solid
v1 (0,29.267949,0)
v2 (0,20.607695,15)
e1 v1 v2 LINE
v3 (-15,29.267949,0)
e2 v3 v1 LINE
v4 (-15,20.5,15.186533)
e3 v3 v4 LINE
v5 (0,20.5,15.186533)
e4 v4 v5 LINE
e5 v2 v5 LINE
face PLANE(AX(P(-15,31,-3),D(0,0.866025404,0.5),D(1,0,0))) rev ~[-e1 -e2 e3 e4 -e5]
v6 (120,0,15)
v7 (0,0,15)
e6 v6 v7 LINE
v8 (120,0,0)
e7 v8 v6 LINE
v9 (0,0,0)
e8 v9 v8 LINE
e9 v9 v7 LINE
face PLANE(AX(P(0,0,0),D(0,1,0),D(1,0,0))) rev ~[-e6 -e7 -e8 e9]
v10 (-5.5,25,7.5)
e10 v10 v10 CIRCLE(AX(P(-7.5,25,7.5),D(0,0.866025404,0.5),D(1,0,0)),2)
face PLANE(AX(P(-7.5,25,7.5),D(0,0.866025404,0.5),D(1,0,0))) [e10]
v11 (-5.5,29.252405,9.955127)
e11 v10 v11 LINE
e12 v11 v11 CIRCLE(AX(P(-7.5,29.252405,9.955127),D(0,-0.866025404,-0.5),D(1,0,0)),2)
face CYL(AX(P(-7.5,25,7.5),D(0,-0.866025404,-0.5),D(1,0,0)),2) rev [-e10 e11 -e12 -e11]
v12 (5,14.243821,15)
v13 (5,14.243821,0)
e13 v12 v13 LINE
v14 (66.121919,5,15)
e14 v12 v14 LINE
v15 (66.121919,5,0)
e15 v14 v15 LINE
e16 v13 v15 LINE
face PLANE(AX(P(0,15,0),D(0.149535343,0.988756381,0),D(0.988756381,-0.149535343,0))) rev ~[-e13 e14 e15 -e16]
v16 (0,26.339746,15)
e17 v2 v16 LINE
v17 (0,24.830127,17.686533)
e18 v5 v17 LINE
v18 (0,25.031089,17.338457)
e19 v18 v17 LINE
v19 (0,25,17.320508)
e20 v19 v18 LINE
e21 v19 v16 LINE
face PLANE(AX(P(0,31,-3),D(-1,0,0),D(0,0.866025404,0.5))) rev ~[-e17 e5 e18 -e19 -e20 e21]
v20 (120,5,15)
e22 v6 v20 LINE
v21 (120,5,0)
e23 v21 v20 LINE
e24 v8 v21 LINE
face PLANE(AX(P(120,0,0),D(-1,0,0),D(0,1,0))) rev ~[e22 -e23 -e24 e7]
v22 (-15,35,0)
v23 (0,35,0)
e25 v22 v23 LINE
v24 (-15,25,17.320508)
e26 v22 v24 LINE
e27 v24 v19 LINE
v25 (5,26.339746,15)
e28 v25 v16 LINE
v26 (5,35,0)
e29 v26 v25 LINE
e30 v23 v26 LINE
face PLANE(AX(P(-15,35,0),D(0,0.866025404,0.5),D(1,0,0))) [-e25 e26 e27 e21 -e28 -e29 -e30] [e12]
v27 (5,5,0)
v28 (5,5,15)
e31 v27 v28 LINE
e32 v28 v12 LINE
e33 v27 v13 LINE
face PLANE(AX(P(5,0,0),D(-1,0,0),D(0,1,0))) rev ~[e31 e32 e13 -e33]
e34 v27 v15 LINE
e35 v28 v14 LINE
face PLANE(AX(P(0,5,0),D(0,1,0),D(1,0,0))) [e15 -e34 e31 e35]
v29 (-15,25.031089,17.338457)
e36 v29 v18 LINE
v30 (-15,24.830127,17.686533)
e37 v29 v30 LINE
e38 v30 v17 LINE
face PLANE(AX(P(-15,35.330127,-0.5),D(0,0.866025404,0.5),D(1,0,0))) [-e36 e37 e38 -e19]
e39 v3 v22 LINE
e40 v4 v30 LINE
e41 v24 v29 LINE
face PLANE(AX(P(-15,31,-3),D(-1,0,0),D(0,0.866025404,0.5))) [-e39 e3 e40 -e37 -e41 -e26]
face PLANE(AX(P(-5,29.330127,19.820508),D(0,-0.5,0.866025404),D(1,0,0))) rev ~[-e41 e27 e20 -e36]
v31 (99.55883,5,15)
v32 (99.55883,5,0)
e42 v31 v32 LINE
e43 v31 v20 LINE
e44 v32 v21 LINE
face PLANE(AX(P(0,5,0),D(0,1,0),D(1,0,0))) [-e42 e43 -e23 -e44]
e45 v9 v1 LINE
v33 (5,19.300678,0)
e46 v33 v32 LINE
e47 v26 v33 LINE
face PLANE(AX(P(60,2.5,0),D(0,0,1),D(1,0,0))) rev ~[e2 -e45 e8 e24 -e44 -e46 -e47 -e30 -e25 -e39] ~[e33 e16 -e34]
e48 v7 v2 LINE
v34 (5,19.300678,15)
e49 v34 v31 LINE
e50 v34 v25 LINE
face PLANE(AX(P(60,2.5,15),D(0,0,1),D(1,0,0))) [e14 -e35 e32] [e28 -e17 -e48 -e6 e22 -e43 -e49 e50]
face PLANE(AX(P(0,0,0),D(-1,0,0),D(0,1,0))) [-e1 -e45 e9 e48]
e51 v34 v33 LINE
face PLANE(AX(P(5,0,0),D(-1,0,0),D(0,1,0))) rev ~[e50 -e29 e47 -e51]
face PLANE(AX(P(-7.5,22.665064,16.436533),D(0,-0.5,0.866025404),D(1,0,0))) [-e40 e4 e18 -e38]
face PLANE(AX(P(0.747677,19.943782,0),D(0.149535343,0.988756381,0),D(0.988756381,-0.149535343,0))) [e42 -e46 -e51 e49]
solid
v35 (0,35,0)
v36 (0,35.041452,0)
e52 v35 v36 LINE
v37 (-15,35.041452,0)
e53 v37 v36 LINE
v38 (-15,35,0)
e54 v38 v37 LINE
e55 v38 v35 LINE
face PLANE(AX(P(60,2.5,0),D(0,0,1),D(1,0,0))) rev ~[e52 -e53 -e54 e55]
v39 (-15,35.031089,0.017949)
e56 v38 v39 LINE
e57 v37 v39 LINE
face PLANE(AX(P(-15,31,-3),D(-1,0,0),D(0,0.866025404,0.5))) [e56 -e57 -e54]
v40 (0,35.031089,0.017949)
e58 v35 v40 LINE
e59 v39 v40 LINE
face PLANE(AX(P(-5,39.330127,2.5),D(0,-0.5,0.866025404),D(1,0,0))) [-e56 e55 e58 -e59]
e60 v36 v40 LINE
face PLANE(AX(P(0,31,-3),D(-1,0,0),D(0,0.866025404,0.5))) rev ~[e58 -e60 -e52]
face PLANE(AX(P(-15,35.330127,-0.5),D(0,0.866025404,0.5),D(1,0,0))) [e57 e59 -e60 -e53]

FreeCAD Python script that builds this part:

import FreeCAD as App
import Part
import Sketcher

doc = App.newDocument("Part")
body = doc.addObject("PartDesign::Body", "Body")

# Sketch on XY plane
sketch1 = body.newObject("Sketcher::SketchObject", "Sketch")
sketch1.AttachmentSupport = (doc.getObject("XY_Plane"), [""])
sketch1.MapMode = "FlatFace"
sketch1.addGeometry(Part.Circle(App.Vector(0, 0, 0), App.Vector(0, 0, 1), 2), False)
sketch1.addConstraint(Sketcher.Constraint("Coincident", 0, 3, -1, 1))
sketch1.addConstraint(Sketcher.Constraint("Diameter", 0, 4.0))
pad1 = body.newObject("PartDesign::Pad", "Pad")
pad1.Profile = sketch1
pad1.Length = 10
body2 = doc.addObject("PartDesign::Body", "Body001")
doc.recompute()

body.Placement = App.Placement(App.Vector(0, 0, 0), App.Rotation(App.Vector(1, 0, 0), 300))
boolean = body2.newObject("PartDesign::Boolean", "Boolean")
boolean.Type = "Fuse"
boolean.addObjects([body])
body3 = doc.addObject("PartDesign::Body", "Body002")
doc.recompute()

body2.Placement = App.Placement(App.Vector(-7.5, 25, 7.5), App.Rotation(App.Vector(0, 0, 1), 0))
boolean2 = body3.newObject("PartDesign::Boolean", "Boolean001")
boolean2.Type = "Fuse"
boolean2.addObjects([body2])
body4 = doc.addObject("PartDesign::Body", "Body003")

# Sketch on XY plane
sketch2 = body4.newObject("Sketcher::SketchObject", "Sketch001")
sketch2.AttachmentSupport = (doc.getObject("XY_Plane003"), [""])
sketch2.MapMode = "FlatFace"
sketch2.addGeometry(Part.LineSegment(App.Vector(0, 10, 0), App.Vector(0, 0, 0)), False)
sketch2.addGeometry(Part.LineSegment(App.Vector(0, 0, 0), App.Vector(20, 0, 0)), False)
sketch2.addGeometry(Part.LineSegment(App.Vector(20, 0, 0), App.Vector(20, 10, 0)), False)
sketch2.addGeometry(Part.LineSegment(App.Vector(20, 10, 0), App.Vector(0, 10, 0)), False)
sketch2.addConstraint(Sketcher.Constraint("Coincident", 0, 2, 1, 1))
sketch2.addConstraint(Sketcher.Constraint("Coincident", 1, 2, 2, 1))
sketch2.addConstraint(Sketcher.Constraint("Coincident", 2, 2, 3, 1))
sketch2.addConstraint(Sketcher.Constraint("Coincident", 3, 2, 0, 1))
sketch2.addConstraint(Sketcher.Constraint("Vertical", 0))
sketch2.addConstraint(Sketcher.Constraint("Horizontal", 1))
sketch2.addConstraint(Sketcher.Constraint("Vertical", 2))
sketch2.addConstraint(Sketcher.Constraint("Horizontal", 3))
sketch2.addConstraint(Sketcher.Constraint("Coincident", 0, 2, -1, 1))
sketch2.addConstraint(Sketcher.Constraint("DistanceX", 1, 1, 1, 2, 20.0))
sketch2.addConstraint(Sketcher.Constraint("DistanceY", 0, 2, 0, 1, 10.0))
pad2 = body4.newObject("PartDesign::Pad", "Pad001")
pad2.Profile = sketch2
pad2.Length = 20
body5 = doc.addObject("PartDesign::Body", "Body004")
doc.recompute()

body4.Placement = App.Placement(App.Vector(-15, 35, 0), App.Rotation(App.Vector(1, 0, 0), 30))
boolean3 = body5.newObject("PartDesign::Boolean", "Boolean002")
boolean3.Type = "Fuse"
boolean3.addObjects([body4])
body6 = doc.addObject("PartDesign::Body", "Body005")

# Sketch on XY plane
sketch3 = body6.newObject("Sketcher::SketchObject", "Sketch002")
sketch3.AttachmentSupport = (doc.getObject("XY_Plane005"), [""])
sketch3.MapMode = "FlatFace"
sketch3.AttachmentOffset = App.Placement(App.Vector(0, 0, -5), App.Rotation())
sketch3.addGeometry(Part.LineSegment(App.Vector(-15, 45, 0), App.Vector(-15, 25, 0)), False)
sketch3.addGeometry(Part.LineSegment(App.Vector(-15, 25, 0), App.Vector(5, 25, 0)), False)
sketch3.addGeometry(Part.LineSegment(App.Vector(5, 25, 0), App.Vector(5, 45, 0)), False)
sketch3.addGeometry(Part.LineSegment(App.Vector(5, 45, 0), App.Vector(-15, 45, 0)), False)
sketch3.addConstraint(Sketcher.Constraint("Coincident", 0, 2, 1, 1))
sketch3.addConstraint(Sketcher.Constraint("Coincident", 1, 2, 2, 1))
sketch3.addConstraint(Sketcher.Constraint("Coincident", 2, 2, 3, 1))
sketch3.addConstraint(Sketcher.Constraint("Coincident", 3, 2, 0, 1))
sketch3.addConstraint(Sketcher.Constraint("Vertical", 0))
sketch3.addConstraint(Sketcher.Constraint("Horizontal", 1))
sketch3.addConstraint(Sketcher.Constraint("Vertical", 2))
sketch3.addConstraint(Sketcher.Constraint("Horizontal", 3))
sketch3.addConstraint(Sketcher.Constraint("Equal", 3, 0))
sketch3.addConstraint(Sketcher.Constraint("DistanceX", 1, 1, 1, 2, 20.0))
sketch3.addConstraint(Sketcher.Constraint("DistanceX", 0, 2, -1, 1, 15.0))
sketch3.addConstraint(Sketcher.Constraint("DistanceY", -1, 1, 0, 2, 25.0))
pad3 = body6.newObject("PartDesign::Pad", "Pad002")
pad3.Profile = sketch3
pad3.Length = 5
body7 = doc.addObject("PartDesign::Body", "Body006")

# Sketch on XY plane
sketch4 = body7.newObject("Sketcher::SketchObject", "Sketch003")
sketch4.AttachmentSupport = (doc.getObject("XY_Plane006"), [""])
sketch4.MapMode = "FlatFace"
sketch4.addGeometry(Part.LineSegment(App.Vector(0, 35, 0), App.Vector(0, 0, 0)), False)
sketch4.addGeometry(Part.LineSegment(App.Vector(0, 0, 0), App.Vector(5, 0, 0)), False)
sketch4.addGeometry(Part.LineSegment(App.Vector(5, 0, 0), App.Vector(5, 35, 0)), False)
sketch4.addGeometry(Part.LineSegment(App.Vector(5, 35, 0), App.Vector(0, 35, 0)), False)
sketch4.addConstraint(Sketcher.Constraint("Coincident", 0, 2, 1, 1))
sketch4.addConstraint(Sketcher.Constraint("Coincident", 1, 2, 2, 1))
sketch4.addConstraint(Sketcher.Constraint("Coincident", 2, 2, 3, 1))
sketch4.addConstraint(Sketcher.Constraint("Coincident", 3, 2, 0, 1))
sketch4.addConstraint(Sketcher.Constraint("Vertical", 0))
sketch4.addConstraint(Sketcher.Constraint("Horizontal", 1))
sketch4.addConstraint(Sketcher.Constraint("Vertical", 2))
sketch4.addConstraint(Sketcher.Constraint("Horizontal", 3))
sketch4.addConstraint(Sketcher.Constraint("Coincident", 0, 2, -1, 1))
sketch4.addConstraint(Sketcher.Constraint("DistanceX", 1, 1, 1, 2, 5.0))
sketch4.addConstraint(Sketcher.Constraint("DistanceY", 0, 2, 0, 1, 35.0))
pad4 = body7.newObject("PartDesign::Pad", "Pad003")
pad4.Profile = sketch4
pad4.Length = 15
body8 = doc.addObject("PartDesign::Body", "Body007")

# Sketch on XY plane
sketch5 = body8.newObject("Sketcher::SketchObject", "Sketch004")
sketch5.AttachmentSupport = (doc.getObject("XY_Plane007"), [""])
sketch5.MapMode = "FlatFace"
sketch5.addGeometry(Part.LineSegment(App.Vector(0, 5, 0), App.Vector(0, 0, 0)), False)
sketch5.addGeometry(Part.LineSegment(App.Vector(0, 0, 0), App.Vector(15, 0, 0)), False)
sketch5.addGeometry(Part.LineSegment(App.Vector(15, 0, 0), App.Vector(15, 5, 0)), False)
sketch5.addGeometry(Part.LineSegment(App.Vector(15, 5, 0), App.Vector(0, 5, 0)), False)
sketch5.addConstraint(Sketcher.Constraint("Coincident", 0, 2, 1, 1))
sketch5.addConstraint(Sketcher.Constraint("Coincident", 1, 2, 2, 1))
sketch5.addConstraint(Sketcher.Constraint("Coincident", 2, 2, 3, 1))
sketch5.addConstraint(Sketcher.Constraint("Coincident", 3, 2, 0, 1))
sketch5.addConstraint(Sketcher.Constraint("Vertical", 0))
sketch5.addConstraint(Sketcher.Constraint("Horizontal", 1))
sketch5.addConstraint(Sketcher.Constraint("Vertical", 2))
sketch5.addConstraint(Sketcher.Constraint("Horizontal", 3))
sketch5.addConstraint(Sketcher.Constraint("Coincident", 0, 2, -1, 1))
sketch5.addConstraint(Sketcher.Constraint("DistanceX", 1, 1, 1, 2, 15.0))
sketch5.addConstraint(Sketcher.Constraint("DistanceY", 0, 2, 0, 1, 5.0))
pad5 = body8.newObject("PartDesign::Pad", "Pad004")
pad5.Profile = sketch5
pad5.Length = 21
body9 = doc.addObject("PartDesign::Body", "Body008")
doc.recompute()

body8.Placement = App.Placement(App.Vector(-15, 31, -3), App.Rotation(App.Vector(1, 0, 0), 30))
boolean4 = body9.newObject("PartDesign::Boolean", "Boolean003")
boolean4.Type = "Fuse"
boolean4.addObjects([body8])
body10 = doc.addObject("PartDesign::Body", "Body009")

# Sketch on XY plane
sketch6 = body10.newObject("Sketcher::SketchObject", "Sketch005")
sketch6.AttachmentSupport = (doc.getObject("XY_Plane009"), [""])
sketch6.MapMode = "FlatFace"
sketch6.addGeometry(Part.LineSegment(App.Vector(0, 5, 0), App.Vector(0, 0, 0)), False)
sketch6.addGeometry(Part.LineSegment(App.Vector(0, 0, 0), App.Vector(100, 0, 0)), False)
sketch6.addGeometry(Part.LineSegment(App.Vector(100, 0, 0), App.Vector(100, 5, 0)), False)
sketch6.addGeometry(Part.LineSegment(App.Vector(100, 5, 0), App.Vector(0, 5, 0)), False)
sketch6.addConstraint(Sketcher.Constraint("Coincident", 0, 2, 1, 1))
sketch6.addConstraint(Sketcher.Constraint("Coincident", 1, 2, 2, 1))
sketch6.addConstraint(Sketcher.Constraint("Coincident", 2, 2, 3, 1))
sketch6.addConstraint(Sketcher.Constraint("Coincident", 3, 2, 0, 1))
sketch6.addConstraint(Sketcher.Constraint("Vertical", 0))
sketch6.addConstraint(Sketcher.Constraint("Horizontal", 1))
sketch6.addConstraint(Sketcher.Constraint("Vertical", 2))
sketch6.addConstraint(Sketcher.Constraint("Horizontal", 3))
sketch6.addConstraint(Sketcher.Constraint("Coincident", 0, 2, -1, 1))
sketch6.addConstraint(Sketcher.Constraint("DistanceX", 1, 1, 1, 2, 100.0))
sketch6.addConstraint(Sketcher.Constraint("DistanceY", 0, 2, 0, 1, 5.0))
pad6 = body10.newObject("PartDesign::Pad", "Pad005")
pad6.Profile = sketch6
pad6.Length = 15
body11 = doc.addObject("PartDesign::Body", "Body010")
doc.recompute()

body10.Placement = App.Placement(App.Vector(0, 15, 0), App.Rotation(App.Vector(0, 0, 1), 351.4))
boolean5 = body11.newObject("PartDesign::Boolean", "Boolean004")
boolean5.Type = "Fuse"
boolean5.addObjects([body10])
body12 = doc.addObject("PartDesign::Body", "Body011")
body12.AllowCompound = True

# Sketch on XY plane
sketch7 = body12.newObject("Sketcher::SketchObject", "Sketch006")
sketch7.AttachmentSupport = (doc.getObject("XY_Plane011"), [""])
sketch7.MapMode = "FlatFace"
sketch7.addGeometry(Part.LineSegment(App.Vector(0, 5, 0), App.Vector(0, 0, 0)), False)
sketch7.addGeometry(Part.LineSegment(App.Vector(0, 0, 0), App.Vector(120, 0, 0)), False)
sketch7.addGeometry(Part.LineSegment(App.Vector(120, 0, 0), App.Vector(120, 5, 0)), False)
sketch7.addGeometry(Part.LineSegment(App.Vector(120, 5, 0), App.Vector(0, 5, 0)), False)
sketch7.addConstraint(Sketcher.Constraint("Coincident", 0, 2, 1, 1))
sketch7.addConstraint(Sketcher.Constraint("Coincident", 1, 2, 2, 1))
sketch7.addConstraint(Sketcher.Constraint("Coincident", 2, 2, 3, 1))
sketch7.addConstraint(Sketcher.Constraint("Coincident", 3, 2, 0, 1))
sketch7.addConstraint(Sketcher.Constraint("Vertical", 0))
sketch7.addConstraint(Sketcher.Constraint("Horizontal", 1))
sketch7.addConstraint(Sketcher.Constraint("Vertical", 2))
sketch7.addConstraint(Sketcher.Constraint("Horizontal", 3))
sketch7.addConstraint(Sketcher.Constraint("Coincident", 0, 2, -1, 1))
sketch7.addConstraint(Sketcher.Constraint("DistanceX", 1, 1, 1, 2, 120.0))
sketch7.addConstraint(Sketcher.Constraint("DistanceY", 0, 2, 0, 1, 5.0))
pad7 = body12.newObject("PartDesign::Pad", "Pad006")
pad7.Profile = sketch7
pad7.Length = 15
doc.recompute()

boolean6 = body12.newObject("PartDesign::Boolean", "Boolean005")
boolean6.Type = "Fuse"
boolean6.addObjects([body7])
doc.recompute()

boolean7 = body12.newObject("PartDesign::Boolean", "Boolean006")
boolean7.Type = "Fuse"
boolean7.addObjects([body9])
doc.recompute()

boolean8 = body12.newObject("PartDesign::Boolean", "Boolean007")
boolean8.Type = "Fuse"
boolean8.addObjects([body11])
doc.recompute()

boolean9 = body12.newObject("PartDesign::Boolean", "Boolean008")
boolean9.Type = "Cut"
boolean9.addObjects([body6])
doc.recompute()

boolean10 = body12.newObject("PartDesign::Boolean", "Boolean009")
boolean10.Type = "Cut"
boolean10.addObjects([body5])
doc.recompute()

boolean11 = body12.newObject("PartDesign::Boolean", "Boolean010")
boolean11.Type = "Cut"
boolean11.addObjects([body3])

doc.recompute()
